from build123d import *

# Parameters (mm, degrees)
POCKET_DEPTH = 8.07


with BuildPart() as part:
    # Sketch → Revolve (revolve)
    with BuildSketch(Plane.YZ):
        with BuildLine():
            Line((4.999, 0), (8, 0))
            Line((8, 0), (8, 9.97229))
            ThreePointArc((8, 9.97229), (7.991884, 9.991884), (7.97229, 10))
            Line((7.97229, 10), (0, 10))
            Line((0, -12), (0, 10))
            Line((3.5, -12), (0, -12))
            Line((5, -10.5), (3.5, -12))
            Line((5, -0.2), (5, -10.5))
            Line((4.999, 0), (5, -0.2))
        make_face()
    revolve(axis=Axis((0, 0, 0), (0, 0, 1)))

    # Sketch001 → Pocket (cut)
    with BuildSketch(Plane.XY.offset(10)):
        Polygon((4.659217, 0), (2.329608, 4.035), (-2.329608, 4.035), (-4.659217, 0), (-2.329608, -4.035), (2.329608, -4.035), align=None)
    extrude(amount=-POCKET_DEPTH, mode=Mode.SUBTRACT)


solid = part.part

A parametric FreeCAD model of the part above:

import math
import FreeCAD as App
import Part
import Sketcher
Q = App.Units.Quantity

doc = App.newDocument("Part")
body = doc.addObject("PartDesign::Body", "Body")

sketch1 = body.newObject("Sketcher::SketchObject", "Sketch")
sketch1.AttachmentSupport = (doc.getObject("YZ_Plane"), [""])
sketch1.MapMode = "FlatFace"
sketch1.addGeometry([
    Part.LineSegment(App.Vector(4.999, 0, 0), App.Vector(8, 0, 0)),
    Part.LineSegment(App.Vector(8, 0, 0), App.Vector(8, 9.97229, 0)),
    Part.ArcOfCircle(Part.Circle(App.Vector(7.97229, 9.97229, 0), App.Vector(0, 0, 1), 0.02771), math.radians(-0.000502), math.radians(90.000502)),
    Part.LineSegment(App.Vector(7.97229, 10, 0), App.Vector(0, 10, 0)),
    Part.LineSegment(App.Vector(0, 10, 0), App.Vector(0, -12, 0)),
    Part.LineSegment(App.Vector(0, -12, 0), App.Vector(3.5, -12, 0)),
    Part.LineSegment(App.Vector(3.5, -12, 0), App.Vector(5, -10.5, 0)),
    Part.LineSegment(App.Vector(5, -10.5, 0), App.Vector(5, -0.2, 0)),
    Part.LineSegment(App.Vector(5, -0.2, 0), App.Vector(4.999, 0, 0)),
], False)
sketch1.addConstraint([
    Sketcher.Constraint("Coincident", 0, 2, 1, 1),
    Sketcher.Constraint("Coincident", 1, 2, 2, 1),
    Sketcher.Constraint("Coincident", 2, 2, 3, 1),
    Sketcher.Constraint("Coincident", 3, 2, 4, 1),
    Sketcher.Constraint("Coincident", 4, 2, 5, 1),
    Sketcher.Constraint("Coincident", 5, 2, 6, 1),
    Sketcher.Constraint("Coincident", 6, 2, 7, 1),
    Sketcher.Constraint("Coincident", 7, 2, 8, 1),
    Sketcher.Constraint("Coincident", 8, 2, 0, 1),
    Sketcher.Constraint("Horizontal", 0),
    Sketcher.Constraint("Vertical", 1),
    Sketcher.Constraint("Horizontal", 3),
    Sketcher.Constraint("Vertical", 4),
    Sketcher.Constraint("Horizontal", 5),
    Sketcher.Constraint("Vertical", 7),
    Sketcher.Constraint("PointOnObject", 0, 2, -1),
    Sketcher.Constraint("PointOnObject", 3, 2, -2),
    Sketcher.Constraint("Horizontal", 2, 3, 1, 2),
    Sketcher.Constraint("DistanceY", 4, 2, 4, 1, Q("22 mm")),
    Sketcher.Constraint("Angle", 6, Q("45 deg")),
    Sketcher.Constraint("DistanceX", 5, 1, 5, 2, Q("3.5 mm")),
    Sketcher.Constraint("DistanceY", 7, 1, 7, 2, Q("10.3 mm")),
    Sketcher.Constraint("DistanceX", -1, 1, 0, 2, Q("8 mm")),
    Sketcher.Constraint("DistanceY", -1, 1, 2, 2, Q("10 mm")),
    Sketcher.Constraint("DistanceX", -1, 1, 6, 2, Q("5 mm")),
    Sketcher.Constraint("DistanceX", 0, 1, 0, 2, Q("3.001 mm")),
    Sketcher.Constraint("Radius", 2, Q("0.02771 mm")),
    Sketcher.Constraint("DistanceX", 3, 2, 3, 1, Q("7.97229 mm")),
])
revolution = body.newObject("PartDesign::Revolution", "Revolution")
revolution.Profile = sketch1
revolution.ReferenceAxis = (sketch1, ["V_Axis"])
revolution.Angle = 360

sketch2 = body.newObject("Sketcher::SketchObject", "Sketch001")
sketch2.AttachmentSupport = (doc.getObject("XY_Plane"), [""])
sketch2.MapMode = "FlatFace"
sketch2.AttachmentOffset = App.Placement(App.Vector(0, 0, 10), App.Rotation())
sketch2.addGeometry([
    Part.LineSegment(App.Vector(4.659217, 0, 0), App.Vector(2.329608, 4.035, 0)),
    Part.LineSegment(App.Vector(2.329608, 4.035, 0), App.Vector(-2.329608, 4.035, 0)),
    Part.LineSegment(App.Vector(-2.329608, 4.035, 0), App.Vector(-4.659217, 0, 0)),
    Part.LineSegment(App.Vector(-4.659217, 0, 0), App.Vector(-2.329608, -4.035, 0)),
    Part.LineSegment(App.Vector(-2.329608, -4.035, 0), App.Vector(2.329608, -4.035, 0)),
    Part.LineSegment(App.Vector(2.329608, -4.035, 0), App.Vector(4.659217, 0, 0)),
], False)
sketch2.addConstraint([
    Sketcher.Constraint("Coincident", 0, 2, 1, 1),
    Sketcher.Constraint("Coincident", 1, 2, 2, 1),
    Sketcher.Constraint("Coincident", 2, 2, 3, 1),
    Sketcher.Constraint("Coincident", 3, 2, 4, 1),
    Sketcher.Constraint("Coincident", 4, 2, 5, 1),
    Sketcher.Constraint("Coincident", 5, 2, 0, 1),
    Sketcher.Constraint("Horizontal", 1),
    Sketcher.Constraint("Horizontal", 4),
    Sketcher.Constraint("Symmetric", 0, 2, 3, 2, -1, 1),
    Sketcher.Constraint("Symmetric", 2, 2, 5, 2, -1, 1),
    Sketcher.Constraint("PointOnObject", 2, 2, -1),
    Sketcher.Constraint("Parallel", 2, 5),
    Sketcher.Constraint("Vertical", 1, 2, 3, 2),
    Sketcher.Constraint("Angle", 0, Q("120.000007 deg")),
    Sketcher.Constraint("DistanceY", 3, 2, 1, 2, Q("8.07 mm")),
    Sketcher.Constraint("DistanceX", 1, 2, 1, 1, Q("4.659216 mm")),
])
pocket1 = body.newObject("PartDesign::Pocket", "Pocket")
pocket1.Profile = sketch2
pocket1.Length = 8.07

doc.recompute()
